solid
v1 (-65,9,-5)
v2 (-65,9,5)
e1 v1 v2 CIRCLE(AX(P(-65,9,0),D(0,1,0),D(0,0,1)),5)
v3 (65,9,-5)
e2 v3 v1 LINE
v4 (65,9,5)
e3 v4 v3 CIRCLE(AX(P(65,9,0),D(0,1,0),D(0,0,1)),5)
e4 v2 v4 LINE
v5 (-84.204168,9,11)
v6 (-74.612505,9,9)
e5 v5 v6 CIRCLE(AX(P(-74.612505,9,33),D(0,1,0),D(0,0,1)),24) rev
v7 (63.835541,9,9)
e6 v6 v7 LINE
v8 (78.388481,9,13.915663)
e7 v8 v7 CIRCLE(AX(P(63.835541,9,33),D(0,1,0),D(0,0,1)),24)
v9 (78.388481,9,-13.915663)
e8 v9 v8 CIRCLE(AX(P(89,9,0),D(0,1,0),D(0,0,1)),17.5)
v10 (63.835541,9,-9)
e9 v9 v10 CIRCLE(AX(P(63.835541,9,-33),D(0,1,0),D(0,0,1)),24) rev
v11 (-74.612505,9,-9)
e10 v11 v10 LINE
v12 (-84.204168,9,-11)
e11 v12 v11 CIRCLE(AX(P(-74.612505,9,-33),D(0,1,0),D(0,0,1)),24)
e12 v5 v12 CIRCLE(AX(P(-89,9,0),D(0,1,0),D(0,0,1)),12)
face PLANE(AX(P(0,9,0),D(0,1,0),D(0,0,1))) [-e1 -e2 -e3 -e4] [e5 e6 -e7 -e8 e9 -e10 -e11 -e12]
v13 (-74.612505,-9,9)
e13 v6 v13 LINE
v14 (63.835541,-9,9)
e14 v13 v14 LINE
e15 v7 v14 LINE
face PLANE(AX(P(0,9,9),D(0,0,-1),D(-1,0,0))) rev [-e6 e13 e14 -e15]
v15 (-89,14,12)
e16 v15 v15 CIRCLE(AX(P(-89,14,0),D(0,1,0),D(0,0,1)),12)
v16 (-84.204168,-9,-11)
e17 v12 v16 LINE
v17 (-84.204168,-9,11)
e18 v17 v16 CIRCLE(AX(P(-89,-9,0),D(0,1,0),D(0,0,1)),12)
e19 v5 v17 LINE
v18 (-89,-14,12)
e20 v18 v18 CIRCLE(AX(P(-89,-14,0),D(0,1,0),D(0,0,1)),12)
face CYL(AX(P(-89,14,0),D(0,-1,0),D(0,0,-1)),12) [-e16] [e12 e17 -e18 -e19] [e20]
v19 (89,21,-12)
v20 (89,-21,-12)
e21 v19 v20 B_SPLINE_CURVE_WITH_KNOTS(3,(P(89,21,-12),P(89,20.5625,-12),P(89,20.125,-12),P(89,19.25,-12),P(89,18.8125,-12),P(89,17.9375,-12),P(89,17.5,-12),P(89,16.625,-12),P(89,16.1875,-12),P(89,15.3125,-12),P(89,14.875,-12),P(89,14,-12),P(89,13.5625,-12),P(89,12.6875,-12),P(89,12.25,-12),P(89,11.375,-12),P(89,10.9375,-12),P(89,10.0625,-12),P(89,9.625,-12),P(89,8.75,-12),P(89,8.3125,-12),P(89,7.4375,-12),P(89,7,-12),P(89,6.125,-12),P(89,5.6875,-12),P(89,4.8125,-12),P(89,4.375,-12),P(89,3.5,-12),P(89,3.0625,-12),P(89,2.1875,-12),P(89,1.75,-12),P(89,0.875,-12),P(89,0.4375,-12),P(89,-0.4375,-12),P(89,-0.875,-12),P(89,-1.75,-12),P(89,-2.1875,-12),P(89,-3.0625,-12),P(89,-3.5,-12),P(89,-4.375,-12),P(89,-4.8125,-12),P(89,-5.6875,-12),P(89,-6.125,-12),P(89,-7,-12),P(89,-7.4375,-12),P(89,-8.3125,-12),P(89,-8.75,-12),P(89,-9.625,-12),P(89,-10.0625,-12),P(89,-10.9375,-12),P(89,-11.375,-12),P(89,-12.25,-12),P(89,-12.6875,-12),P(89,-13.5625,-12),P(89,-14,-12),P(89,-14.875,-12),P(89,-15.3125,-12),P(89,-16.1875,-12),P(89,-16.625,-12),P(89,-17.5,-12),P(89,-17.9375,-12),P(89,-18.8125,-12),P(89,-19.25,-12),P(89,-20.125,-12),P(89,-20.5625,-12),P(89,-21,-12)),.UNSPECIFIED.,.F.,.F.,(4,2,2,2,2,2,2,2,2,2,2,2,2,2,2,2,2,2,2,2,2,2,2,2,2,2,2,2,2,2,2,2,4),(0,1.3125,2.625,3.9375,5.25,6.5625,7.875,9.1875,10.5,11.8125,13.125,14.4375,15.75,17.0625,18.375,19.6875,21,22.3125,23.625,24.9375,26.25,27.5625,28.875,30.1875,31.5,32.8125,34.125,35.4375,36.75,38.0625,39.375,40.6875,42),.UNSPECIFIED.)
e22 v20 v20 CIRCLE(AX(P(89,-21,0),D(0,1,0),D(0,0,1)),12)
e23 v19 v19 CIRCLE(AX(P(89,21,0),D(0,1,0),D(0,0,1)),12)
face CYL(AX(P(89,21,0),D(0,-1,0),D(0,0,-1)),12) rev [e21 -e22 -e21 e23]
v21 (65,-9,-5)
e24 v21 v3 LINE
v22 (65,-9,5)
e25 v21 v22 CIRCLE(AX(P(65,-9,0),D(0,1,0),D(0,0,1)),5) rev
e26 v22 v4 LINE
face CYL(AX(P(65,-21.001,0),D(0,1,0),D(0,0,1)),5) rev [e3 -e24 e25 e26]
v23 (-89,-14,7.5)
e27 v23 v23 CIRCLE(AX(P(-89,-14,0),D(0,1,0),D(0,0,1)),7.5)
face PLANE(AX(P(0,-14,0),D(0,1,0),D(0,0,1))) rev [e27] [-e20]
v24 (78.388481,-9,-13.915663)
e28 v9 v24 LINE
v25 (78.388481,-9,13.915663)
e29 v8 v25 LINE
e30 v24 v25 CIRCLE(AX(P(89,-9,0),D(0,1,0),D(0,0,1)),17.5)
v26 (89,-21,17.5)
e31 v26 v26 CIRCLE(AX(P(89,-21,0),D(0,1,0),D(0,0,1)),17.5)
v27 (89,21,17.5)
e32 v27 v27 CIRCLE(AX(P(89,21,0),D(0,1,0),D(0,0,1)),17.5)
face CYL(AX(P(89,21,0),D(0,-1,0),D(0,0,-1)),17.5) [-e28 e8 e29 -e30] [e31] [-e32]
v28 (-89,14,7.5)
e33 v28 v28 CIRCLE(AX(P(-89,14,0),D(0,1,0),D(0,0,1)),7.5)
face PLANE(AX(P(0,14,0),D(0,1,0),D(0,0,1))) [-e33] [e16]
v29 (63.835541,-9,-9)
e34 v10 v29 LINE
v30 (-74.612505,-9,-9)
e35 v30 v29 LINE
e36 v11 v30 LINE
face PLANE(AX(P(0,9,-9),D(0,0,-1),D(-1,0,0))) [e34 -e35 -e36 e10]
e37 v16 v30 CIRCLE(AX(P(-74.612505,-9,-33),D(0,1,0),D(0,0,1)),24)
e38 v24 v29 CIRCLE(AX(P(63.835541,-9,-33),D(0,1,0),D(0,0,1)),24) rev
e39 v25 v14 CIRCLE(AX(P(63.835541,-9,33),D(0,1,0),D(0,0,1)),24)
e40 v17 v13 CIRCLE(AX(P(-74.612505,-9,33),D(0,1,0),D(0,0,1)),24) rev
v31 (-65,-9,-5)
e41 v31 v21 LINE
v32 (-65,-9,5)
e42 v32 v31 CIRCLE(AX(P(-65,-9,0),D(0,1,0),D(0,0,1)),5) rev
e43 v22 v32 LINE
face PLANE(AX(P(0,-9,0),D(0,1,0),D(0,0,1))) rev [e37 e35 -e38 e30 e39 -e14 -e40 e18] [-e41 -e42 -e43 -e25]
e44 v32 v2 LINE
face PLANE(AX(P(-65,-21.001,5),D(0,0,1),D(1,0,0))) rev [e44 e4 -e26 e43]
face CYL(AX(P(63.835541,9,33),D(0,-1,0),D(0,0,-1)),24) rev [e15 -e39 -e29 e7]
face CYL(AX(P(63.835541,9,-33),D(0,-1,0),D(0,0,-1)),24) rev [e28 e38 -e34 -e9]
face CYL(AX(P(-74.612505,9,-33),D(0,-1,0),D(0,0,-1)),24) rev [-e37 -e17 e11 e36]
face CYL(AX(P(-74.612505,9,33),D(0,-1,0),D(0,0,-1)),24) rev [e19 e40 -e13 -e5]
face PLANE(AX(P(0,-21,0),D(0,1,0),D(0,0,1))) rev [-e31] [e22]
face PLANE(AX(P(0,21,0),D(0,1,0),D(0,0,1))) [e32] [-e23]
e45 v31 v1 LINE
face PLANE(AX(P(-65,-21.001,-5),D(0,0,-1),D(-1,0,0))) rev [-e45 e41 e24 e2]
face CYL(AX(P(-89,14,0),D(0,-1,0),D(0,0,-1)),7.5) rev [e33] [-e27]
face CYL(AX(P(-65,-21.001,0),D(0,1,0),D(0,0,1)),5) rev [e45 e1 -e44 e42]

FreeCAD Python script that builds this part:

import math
import FreeCAD as App
import Part
import Sketcher

V = App.Vector
Q = App.Units.Quantity

doc = App.newDocument("Part")
body = doc.addObject("PartDesign::Body", "Body")

# Sketch on XZ plane
sketch1 = body.newObject("Sketcher::SketchObject", "Sketch")
sketch1.AttachmentSupport = (doc.getObject("XZ_Plane"), [""])
sketch1.MapMode = "FlatFace"
sketch1.addGeometry([
    Part.Circle(V(-89, 0, 0), V(0, 0, 1), 12),
    Part.Circle(V(-89, 0, 0), V(0, 0, 1), 8),
], False)
sketch1.addConstraint([
    Sketcher.Constraint("Coincident", 1, 3, 0, 3),
    Sketcher.Constraint("PointOnObject", 0, 3, -1),
    Sketcher.Constraint("Diameter", 0, Q("24 mm")),
    Sketcher.Constraint("Diameter", 1, Q("15 mm")),
    Sketcher.Constraint("DistanceX", 0, 3, -1, 1, Q("89 mm")),
])
pad1 = body.newObject("PartDesign::Pad", "Pad")
pad1.Profile = sketch1
pad1.Length = 28
pad1.Midplane = True
body2 = doc.addObject("PartDesign::Body", "Body001")

# Sketch on XZ plane
sketch2 = body2.newObject("Sketcher::SketchObject", "Sketch001")
sketch2.AttachmentSupport = (doc.getObject("XZ_Plane001"), [""])
sketch2.MapMode = "FlatFace"
sketch2.addGeometry([
    Part.Circle(V(89, 0, 0), V(0, 0, 1), 18),
    Part.Circle(V(89, 0, 0), V(0, 0, 1), 12),
], False)
sketch2.addConstraint([
    Sketcher.Constraint("Coincident", 1, 3, 0, 3),
    Sketcher.Constraint("PointOnObject", 0, 3, -1),
    Sketcher.Constraint("Diameter", 0, Q("35 mm")),
    Sketcher.Constraint("Diameter", 1, Q("24 mm")),
    Sketcher.Constraint("DistanceX", -1, 1, 0, 3, Q("89 mm")),
])
pad2 = body2.newObject("PartDesign::Pad", "Pad001")
pad2.Profile = sketch2
pad2.Length = 42
pad2.Midplane = True
body.AllowCompound = True
doc.recompute()

boolean = body.newObject("PartDesign::Boolean", "Boolean")
boolean.Type = "Fuse"
boolean.addObjects([body2])

# Sketch on XZ plane
sketch3 = body.newObject("Sketcher::SketchObject", "Sketch002")
sketch3.AttachmentSupport = (doc.getObject("XZ_Plane"), [""])
sketch3.MapMode = "FlatFace"
sketch3.addGeometry([
    Part.ArcOfCircle(Part.Circle(V(-89, 0, 0), V(0, 0, 1), 12), math.radians(-66), math.radians(0)),  # 0
    Part.ArcOfCircle(Part.Circle(V(-89, 0, 0), V(0, 0, 1), 12), math.radians(0), math.radians(66)),  # 1
    Part.ArcOfCircle(Part.Circle(V(-75, 33, 0), V(0, 0, 1), 24), math.radians(-114), math.radians(-90)),  # 2
    Part.LineSegment(V(-75, 9, 0), V(64, 9, 0)),  # 3
    Part.ArcOfCircle(Part.Circle(V(64, 33, 0), V(0, 0, 1), 24), math.radians(-90), math.radians(-53)),  # 4
    Part.ArcOfCircle(Part.Circle(V(89, 0, 0), V(0, 0, 1), 18), math.radians(127), math.radians(180)),  # 5
    Part.ArcOfCircle(Part.Circle(V(89, 0, 0), V(0, 0, 1), 18), math.radians(-180), math.radians(-127)),  # 6
    Part.ArcOfCircle(Part.Circle(V(64, -33, 0), V(0, 0, 1), 24), math.radians(53), math.radians(90)),  # 7
    Part.LineSegment(V(64, -9, 0), V(-75, -9, 0)),  # 8
    Part.ArcOfCircle(Part.Circle(V(-75, -33, 0), V(0, 0, 1), 24), math.radians(90), math.radians(114)),  # 9
], False)
sketch3.addConstraint([
    Sketcher.Constraint("Tangent", 0, 2, 1, 1),
    Sketcher.Constraint("Tangent", 1, 2, 2, 1),
    Sketcher.Constraint("Tangent", 2, 2, 3, 1),
    Sketcher.Constraint("Tangent", 3, 2, 4, 1),
    Sketcher.Constraint("Tangent", 4, 2, 5, 1),
    Sketcher.Constraint("Tangent", 5, 2, 6, 1),
    Sketcher.Constraint("Tangent", 6, 2, 7, 1),
    Sketcher.Constraint("Tangent", 7, 2, 8, 1),
    Sketcher.Constraint("Tangent", 8, 2, 9, 1),
    Sketcher.Constraint("Tangent", 9, 2, 0, 1),
    Sketcher.Constraint("Horizontal", 3),
    Sketcher.Constraint("Horizontal", 8),
    Sketcher.Constraint("Equal", 0, 1),
    Sketcher.Constraint("Equal", 2, 4),
    Sketcher.Constraint("Equal", 5, 6),
    Sketcher.Constraint("Equal", 4, 7),
    Sketcher.Constraint("Equal", 7, 9),
    Sketcher.Constraint("Symmetric", 0, 3, 5, 3, -1, 1),
    Sketcher.Constraint("Symmetric", 4, 3, 7, 3, -1),
    Sketcher.Constraint("PointOnObject", 0, 2, -1),
    Sketcher.Constraint("PointOnObject", 5, 2, -1),
    Sketcher.Constraint("Radius", 0, Q("12 mm")),
    Sketcher.Constraint("Radius", 2, Q("24 mm")),
    Sketcher.Constraint("Radius", 5, Q("17.5 mm")),
    Sketcher.Constraint("DistanceX", 0, 3, -1, 1, Q("89 mm")),
    Sketcher.Constraint("DistanceY", -1, 1, 2, 3, Q("33 mm")),
])
pad3 = body.newObject("PartDesign::Pad", "Pad002")
pad3.Profile = sketch3
pad3.Length = 18
pad3.Midplane = True

# Sketch on XZ plane
sketch4 = body.newObject("Sketcher::SketchObject", "Sketch003")
sketch4.AttachmentSupport = (doc.getObject("XZ_Plane"), [""])
sketch4.MapMode = "FlatFace"
sketch4.AttachmentOffset = App.Placement(V(0, 0, -9), App.Rotation())
sketch4.addGeometry([
    Part.LineSegment(V(65, -5, 0), V(-65, -5, 0)),
    Part.ArcOfCircle(Part.Circle(V(-65, 0, 0), V(0, 0, 1), 5), math.radians(90), math.radians(270)),
    Part.LineSegment(V(-65, 5, 0), V(65, 5, 0)),
    Part.ArcOfCircle(Part.Circle(V(65, 0, 0), V(0, 0, 1), 5), math.radians(-90), math.radians(90)),
], False)
sketch4.addConstraint([
    Sketcher.Constraint("Tangent", 0, 2, 1, 2),
    Sketcher.Constraint("Tangent", 1, 1, 2, 1),
    Sketcher.Constraint("Tangent", 2, 2, 3, 2),
    Sketcher.Constraint("Tangent", 3, 1, 0, 1),
    Sketcher.Constraint("Horizontal", 0),
    Sketcher.Constraint("Horizontal", 2),
    Sketcher.Constraint("Symmetric", 1, 3, 3, 3, -1, 1),
    Sketcher.Constraint("Radius", 1, Q("5 mm")),
    Sketcher.Constraint("DistanceX", 0, 2, 0, 1, Q("130 mm")),
])
pocket1 = body.newObject("PartDesign::Pocket", "Pocket")
pocket1.Profile = sketch4
pocket1.Type = "UpToFirst"
pocket1.Reversed = True

doc.recompute()
